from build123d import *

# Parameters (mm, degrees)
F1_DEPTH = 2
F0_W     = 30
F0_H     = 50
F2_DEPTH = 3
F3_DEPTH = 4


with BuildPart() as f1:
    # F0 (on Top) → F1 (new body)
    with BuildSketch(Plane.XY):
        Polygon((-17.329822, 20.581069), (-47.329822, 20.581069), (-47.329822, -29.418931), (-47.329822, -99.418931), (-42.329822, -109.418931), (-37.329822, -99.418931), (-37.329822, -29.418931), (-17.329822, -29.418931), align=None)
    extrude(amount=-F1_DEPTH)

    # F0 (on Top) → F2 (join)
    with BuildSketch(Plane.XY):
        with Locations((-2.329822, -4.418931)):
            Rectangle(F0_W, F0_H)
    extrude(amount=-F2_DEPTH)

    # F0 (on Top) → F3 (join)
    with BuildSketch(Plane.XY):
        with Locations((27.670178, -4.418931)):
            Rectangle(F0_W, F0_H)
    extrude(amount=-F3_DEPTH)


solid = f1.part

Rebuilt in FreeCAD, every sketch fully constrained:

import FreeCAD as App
import Part
import Sketcher

V = App.Vector
Q = App.Units.Quantity

doc = App.newDocument("Part")
params = doc.addObject("Spreadsheet::Sheet", "Params")
for row, (alias, value) in enumerate([
    ("sketch1_width", "30 mm"),
    ("sketch1_width2", "20 mm"),
    ("sketch1_height", "120 mm"),
    ("sketch1_height2", "70 mm"),
    ("pad1_length", "2 mm"),
    ("sketch2_width", "30 mm"),
    ("sketch2_height", "50 mm"),
    ("pad2_length", "3 mm"),
    ("sketch3_width", "30 mm"),
    ("sketch3_height", "50 mm"),
    ("pad3_length", "4 mm"),
], start=1):
    params.set(f"A{row}", alias)
    params.set(f"B{row}", "=" + value)
    params.setAlias(f"B{row}", alias)

body = doc.addObject("PartDesign::Body", "Body")

# Sketch on XY plane
sketch1 = doc.addObject("Sketcher::SketchObject", "Sketch")
body.addObject(sketch1)
sketch1.AttachmentSupport = (doc.XY_Plane, [""])
sketch1.MapMode = "FlatFace"
sketch1.addGeometry([
    Part.LineSegment(V(-17, 21, 0), V(-47, 21, 0)),  # 0
    Part.LineSegment(V(-47, 21, 0), V(-47, -99, 0)),  # 1
    Part.LineSegment(V(-47, -99, 0), V(-42, -109, 0)),  # 2
    Part.LineSegment(V(-42, -109, 0), V(-37, -99, 0)),  # 3
    Part.LineSegment(V(-37, -99, 0), V(-37, -29, 0)),  # 4
    Part.LineSegment(V(-37, -29, 0), V(-17, -29, 0)),  # 5
    Part.LineSegment(V(-17, -29, 0), V(-17, 21, 0)),  # 6
], False)
sketch1.addConstraint([
    Sketcher.Constraint("Coincident", 0, 2, 1, 1),
    Sketcher.Constraint("Coincident", 1, 2, 2, 1),
    Sketcher.Constraint("Coincident", 2, 2, 3, 1),
    Sketcher.Constraint("Coincident", 3, 2, 4, 1),
    Sketcher.Constraint("Coincident", 4, 2, 5, 1),
    Sketcher.Constraint("Coincident", 5, 2, 6, 1),
    Sketcher.Constraint("Coincident", 6, 2, 0, 1),
    Sketcher.Constraint("Horizontal", 0),
    Sketcher.Constraint("Vertical", 1),
    Sketcher.Constraint("Vertical", 4),
    Sketcher.Constraint("Horizontal", 5),
    Sketcher.Constraint("Vertical", 6),
    Sketcher.Constraint("Horizontal", 1, 2, 3, 2),
    Sketcher.Constraint("Equal", 2, 3),
    Sketcher.Constraint("DistanceX", 0, 2, 0, 1, Q("30 mm")),
    Sketcher.Constraint("DistanceX", 5, 1, 5, 2, Q("20 mm")),
    Sketcher.Constraint("DistanceY", 1, 2, 1, 1, Q("120 mm")),
    Sketcher.Constraint("DistanceY", 4, 1, 4, 2, Q("70 mm")),
    Sketcher.Constraint("DistanceY", 2, 2, 1, 2, Q("10 mm")),
    Sketcher.Constraint("DistanceY", -1, 1, 0, 2, Q("20.581069 mm")),
    Sketcher.Constraint("DistanceX", 5, 2, -1, 1, Q("17.329822 mm")),
])
sketch1.setExpression("Constraints[14]", "Params.sketch1_width")
sketch1.setExpression("Constraints[15]", "Params.sketch1_width2")
sketch1.setExpression("Constraints[16]", "Params.sketch1_height")
sketch1.setExpression("Constraints[17]", "Params.sketch1_height2")
pad1 = doc.addObject("PartDesign::Pad", "Pad")
body.addObject(pad1)
pad1.Profile = sketch1
pad1.setExpression("Length", "Params.pad1_length")
pad1.Reversed = True

# Sketch on XY plane
sketch2 = doc.addObject("Sketcher::SketchObject", "Sketch001")
body.addObject(sketch2)
sketch2.AttachmentSupport = (doc.XY_Plane, [""])
sketch2.MapMode = "FlatFace"
sketch2.addGeometry([
    Part.LineSegment(V(-17, 21, 0), V(-17, -29, 0)),
    Part.LineSegment(V(-17, -29, 0), V(13, -29, 0)),
    Part.LineSegment(V(13, -29, 0), V(13, 21, 0)),
    Part.LineSegment(V(13, 21, 0), V(-17, 21, 0)),
], False)
sketch2.addConstraint([
    Sketcher.Constraint("Coincident", 0, 2, 1, 1),
    Sketcher.Constraint("Coincident", 1, 2, 2, 1),
    Sketcher.Constraint("Coincident", 2, 2, 3, 1),
    Sketcher.Constraint("Coincident", 3, 2, 0, 1),
    Sketcher.Constraint("Vertical", 0),
    Sketcher.Constraint("Horizontal", 1),
    Sketcher.Constraint("Vertical", 2),
    Sketcher.Constraint("Horizontal", 3),
    Sketcher.Constraint("DistanceX", 1, 1, 1, 2, Q("30 mm")),
    Sketcher.Constraint("DistanceY", 0, 2, 0, 1, Q("50 mm")),
    Sketcher.Constraint("DistanceX", 0, 2, -1, 1, Q("17.329822 mm")),
    Sketcher.Constraint("DistanceY", 0, 2, -1, 1, Q("29.418931 mm")),
])
sketch2.setExpression("Constraints[8]", "Params.sketch2_width")
sketch2.setExpression("Constraints[9]", "Params.sketch2_height")
pad2 = doc.addObject("PartDesign::Pad", "Pad001")
body.addObject(pad2)
pad2.Profile = sketch2
pad2.setExpression("Length", "Params.pad2_length")
pad2.Reversed = True

# Sketch on XY plane
sketch3 = doc.addObject("Sketcher::SketchObject", "Sketch002")
body.addObject(sketch3)
sketch3.AttachmentSupport = (doc.XY_Plane, [""])
sketch3.MapMode = "FlatFace"
sketch3.addGeometry([
    Part.LineSegment(V(13, 21, 0), V(13, -29, 0)),
    Part.LineSegment(V(13, -29, 0), V(43, -29, 0)),
    Part.LineSegment(V(43, -29, 0), V(43, 21, 0)),
    Part.LineSegment(V(43, 21, 0), V(13, 21, 0)),
], False)
sketch3.addConstraint([
    Sketcher.Constraint("Coincident", 0, 2, 1, 1),
    Sketcher.Constraint("Coincident", 1, 2, 2, 1),
    Sketcher.Constraint("Coincident", 2, 2, 3, 1),
    Sketcher.Constraint("Coincident", 3, 2, 0, 1),
    Sketcher.Constraint("Vertical", 0),
    Sketcher.Constraint("Horizontal", 1),
    Sketcher.Constraint("Vertical", 2),
    Sketcher.Constraint("Horizontal", 3),
    Sketcher.Constraint("DistanceX", 1, 1, 1, 2, Q("30 mm")),
    Sketcher.Constraint("DistanceY", 0, 2, 0, 1, Q("50 mm")),
    Sketcher.Constraint("DistanceY", 0, 2, -1, 1, Q("29.418931 mm")),
    Sketcher.Constraint("DistanceX", -1, 1, 0, 2, Q("12.670178 mm")),
])
sketch3.setExpression("Constraints[8]", "Params.sketch3_width")
sketch3.setExpression("Constraints[9]", "Params.sketch3_height")
pad3 = doc.addObject("PartDesign::Pad", "Pad002")
body.addObject(pad3)
pad3.Profile = sketch3
pad3.setExpression("Length", "Params.pad3_length")
pad3.Reversed = True

doc.recompute()
